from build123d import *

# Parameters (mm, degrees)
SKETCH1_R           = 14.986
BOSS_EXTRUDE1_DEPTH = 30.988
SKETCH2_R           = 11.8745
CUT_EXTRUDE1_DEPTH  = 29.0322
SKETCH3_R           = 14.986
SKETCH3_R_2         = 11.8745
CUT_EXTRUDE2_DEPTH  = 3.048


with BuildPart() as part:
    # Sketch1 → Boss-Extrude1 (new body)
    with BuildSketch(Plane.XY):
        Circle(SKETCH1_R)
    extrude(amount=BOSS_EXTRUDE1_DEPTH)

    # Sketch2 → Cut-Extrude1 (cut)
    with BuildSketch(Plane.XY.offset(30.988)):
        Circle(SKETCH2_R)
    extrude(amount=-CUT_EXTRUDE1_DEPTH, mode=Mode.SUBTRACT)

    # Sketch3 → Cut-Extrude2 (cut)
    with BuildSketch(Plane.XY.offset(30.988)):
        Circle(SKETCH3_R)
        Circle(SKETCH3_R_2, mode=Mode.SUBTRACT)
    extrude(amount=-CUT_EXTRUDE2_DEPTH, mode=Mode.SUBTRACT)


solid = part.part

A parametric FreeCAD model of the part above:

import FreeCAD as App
import Part
import Sketcher

V = App.Vector
Q = App.Units.Quantity

doc = App.newDocument("Part")
params = doc.addObject("Spreadsheet::Sheet", "Params")
for row, (alias, value) in enumerate([
    ("sketch1_diameter", "1.18 in"),
    ("pad1_length", "1.22 in"),
    ("sketch2_diameter", "0.935 in"),
    ("pocket1_length", "1.143 in"),
    ("sketch3_diameter", "1.18 in"),
    ("sketch3_diameter2", "0.935 in"),
    ("pocket2_length", "0.12 in"),
], start=1):
    params.set(f"A{row}", alias)
    params.set(f"B{row}", "=" + value)
    params.setAlias(f"B{row}", alias)

body = doc.addObject("PartDesign::Body", "Body")

sketch1 = body.newObject("Sketcher::SketchObject", "Sketch")
sketch1.AttachmentSupport = (doc.getObject("XY_Plane"), [""])
sketch1.MapMode = "FlatFace"
sketch1.addGeometry(Part.Circle(V(0, 0, 0), V(0, 0, 1), 14.986), False)
sketch1.addConstraint([
    Sketcher.Constraint("Coincident", 0, 3, -1, 1),
    Sketcher.Constraint("Diameter", 0, Q("1.18 in")),
])
sketch1.setExpression("Constraints[1]", "Params.sketch1_diameter")
pad1 = body.newObject("PartDesign::Pad", "Pad")
pad1.Profile = sketch1
pad1.setExpression("Length", "Params.pad1_length")

sketch2 = body.newObject("Sketcher::SketchObject", "Sketch001")
sketch2.AttachmentSupport = (doc.getObject("XY_Plane"), [""])
sketch2.MapMode = "FlatFace"
sketch2.AttachmentOffset = App.Placement(V(0, 0, 1.22 * 25.4), App.Rotation())
sketch2.addGeometry(Part.Circle(V(0, 0, 0), V(0, 0, 1), 11.8745), False)
sketch2.addConstraint([
    Sketcher.Constraint("Coincident", 0, 3, -1, 1),
    Sketcher.Constraint("Diameter", 0, Q("0.935 in")),
])
sketch2.setExpression("Constraints[1]", "Params.sketch2_diameter")
pocket1 = body.newObject("PartDesign::Pocket", "Pocket")
pocket1.Profile = sketch2
pocket1.setExpression("Length", "Params.pocket1_length")

sketch3 = body.newObject("Sketcher::SketchObject", "Sketch002")
sketch3.AttachmentSupport = (doc.getObject("XY_Plane"), [""])
sketch3.MapMode = "FlatFace"
sketch3.AttachmentOffset = App.Placement(V(0, 0, 1.22 * 25.4), App.Rotation())
sketch3.addGeometry([
    Part.Circle(V(0, 0, 0), V(0, 0, 1), 14.986),
    Part.Circle(V(0, 0, 0), V(0, 0, 1), 11.8745),
], False)
sketch3.addConstraint([
    Sketcher.Constraint("Coincident", 0, 3, -1, 1),
    Sketcher.Constraint("Coincident", 1, 3, -1, 1),
    Sketcher.Constraint("Diameter", 0, Q("1.18 in")),
    Sketcher.Constraint("Diameter", 1, Q("0.935 in")),
])
sketch3.setExpression("Constraints[2]", "Params.sketch3_diameter")
sketch3.setExpression("Constraints[3]", "Params.sketch3_diameter2")
pocket2 = body.newObject("PartDesign::Pocket", "Pocket001")
pocket2.Profile = sketch3
pocket2.setExpression("Length", "Params.pocket2_length")

doc.recompute()
